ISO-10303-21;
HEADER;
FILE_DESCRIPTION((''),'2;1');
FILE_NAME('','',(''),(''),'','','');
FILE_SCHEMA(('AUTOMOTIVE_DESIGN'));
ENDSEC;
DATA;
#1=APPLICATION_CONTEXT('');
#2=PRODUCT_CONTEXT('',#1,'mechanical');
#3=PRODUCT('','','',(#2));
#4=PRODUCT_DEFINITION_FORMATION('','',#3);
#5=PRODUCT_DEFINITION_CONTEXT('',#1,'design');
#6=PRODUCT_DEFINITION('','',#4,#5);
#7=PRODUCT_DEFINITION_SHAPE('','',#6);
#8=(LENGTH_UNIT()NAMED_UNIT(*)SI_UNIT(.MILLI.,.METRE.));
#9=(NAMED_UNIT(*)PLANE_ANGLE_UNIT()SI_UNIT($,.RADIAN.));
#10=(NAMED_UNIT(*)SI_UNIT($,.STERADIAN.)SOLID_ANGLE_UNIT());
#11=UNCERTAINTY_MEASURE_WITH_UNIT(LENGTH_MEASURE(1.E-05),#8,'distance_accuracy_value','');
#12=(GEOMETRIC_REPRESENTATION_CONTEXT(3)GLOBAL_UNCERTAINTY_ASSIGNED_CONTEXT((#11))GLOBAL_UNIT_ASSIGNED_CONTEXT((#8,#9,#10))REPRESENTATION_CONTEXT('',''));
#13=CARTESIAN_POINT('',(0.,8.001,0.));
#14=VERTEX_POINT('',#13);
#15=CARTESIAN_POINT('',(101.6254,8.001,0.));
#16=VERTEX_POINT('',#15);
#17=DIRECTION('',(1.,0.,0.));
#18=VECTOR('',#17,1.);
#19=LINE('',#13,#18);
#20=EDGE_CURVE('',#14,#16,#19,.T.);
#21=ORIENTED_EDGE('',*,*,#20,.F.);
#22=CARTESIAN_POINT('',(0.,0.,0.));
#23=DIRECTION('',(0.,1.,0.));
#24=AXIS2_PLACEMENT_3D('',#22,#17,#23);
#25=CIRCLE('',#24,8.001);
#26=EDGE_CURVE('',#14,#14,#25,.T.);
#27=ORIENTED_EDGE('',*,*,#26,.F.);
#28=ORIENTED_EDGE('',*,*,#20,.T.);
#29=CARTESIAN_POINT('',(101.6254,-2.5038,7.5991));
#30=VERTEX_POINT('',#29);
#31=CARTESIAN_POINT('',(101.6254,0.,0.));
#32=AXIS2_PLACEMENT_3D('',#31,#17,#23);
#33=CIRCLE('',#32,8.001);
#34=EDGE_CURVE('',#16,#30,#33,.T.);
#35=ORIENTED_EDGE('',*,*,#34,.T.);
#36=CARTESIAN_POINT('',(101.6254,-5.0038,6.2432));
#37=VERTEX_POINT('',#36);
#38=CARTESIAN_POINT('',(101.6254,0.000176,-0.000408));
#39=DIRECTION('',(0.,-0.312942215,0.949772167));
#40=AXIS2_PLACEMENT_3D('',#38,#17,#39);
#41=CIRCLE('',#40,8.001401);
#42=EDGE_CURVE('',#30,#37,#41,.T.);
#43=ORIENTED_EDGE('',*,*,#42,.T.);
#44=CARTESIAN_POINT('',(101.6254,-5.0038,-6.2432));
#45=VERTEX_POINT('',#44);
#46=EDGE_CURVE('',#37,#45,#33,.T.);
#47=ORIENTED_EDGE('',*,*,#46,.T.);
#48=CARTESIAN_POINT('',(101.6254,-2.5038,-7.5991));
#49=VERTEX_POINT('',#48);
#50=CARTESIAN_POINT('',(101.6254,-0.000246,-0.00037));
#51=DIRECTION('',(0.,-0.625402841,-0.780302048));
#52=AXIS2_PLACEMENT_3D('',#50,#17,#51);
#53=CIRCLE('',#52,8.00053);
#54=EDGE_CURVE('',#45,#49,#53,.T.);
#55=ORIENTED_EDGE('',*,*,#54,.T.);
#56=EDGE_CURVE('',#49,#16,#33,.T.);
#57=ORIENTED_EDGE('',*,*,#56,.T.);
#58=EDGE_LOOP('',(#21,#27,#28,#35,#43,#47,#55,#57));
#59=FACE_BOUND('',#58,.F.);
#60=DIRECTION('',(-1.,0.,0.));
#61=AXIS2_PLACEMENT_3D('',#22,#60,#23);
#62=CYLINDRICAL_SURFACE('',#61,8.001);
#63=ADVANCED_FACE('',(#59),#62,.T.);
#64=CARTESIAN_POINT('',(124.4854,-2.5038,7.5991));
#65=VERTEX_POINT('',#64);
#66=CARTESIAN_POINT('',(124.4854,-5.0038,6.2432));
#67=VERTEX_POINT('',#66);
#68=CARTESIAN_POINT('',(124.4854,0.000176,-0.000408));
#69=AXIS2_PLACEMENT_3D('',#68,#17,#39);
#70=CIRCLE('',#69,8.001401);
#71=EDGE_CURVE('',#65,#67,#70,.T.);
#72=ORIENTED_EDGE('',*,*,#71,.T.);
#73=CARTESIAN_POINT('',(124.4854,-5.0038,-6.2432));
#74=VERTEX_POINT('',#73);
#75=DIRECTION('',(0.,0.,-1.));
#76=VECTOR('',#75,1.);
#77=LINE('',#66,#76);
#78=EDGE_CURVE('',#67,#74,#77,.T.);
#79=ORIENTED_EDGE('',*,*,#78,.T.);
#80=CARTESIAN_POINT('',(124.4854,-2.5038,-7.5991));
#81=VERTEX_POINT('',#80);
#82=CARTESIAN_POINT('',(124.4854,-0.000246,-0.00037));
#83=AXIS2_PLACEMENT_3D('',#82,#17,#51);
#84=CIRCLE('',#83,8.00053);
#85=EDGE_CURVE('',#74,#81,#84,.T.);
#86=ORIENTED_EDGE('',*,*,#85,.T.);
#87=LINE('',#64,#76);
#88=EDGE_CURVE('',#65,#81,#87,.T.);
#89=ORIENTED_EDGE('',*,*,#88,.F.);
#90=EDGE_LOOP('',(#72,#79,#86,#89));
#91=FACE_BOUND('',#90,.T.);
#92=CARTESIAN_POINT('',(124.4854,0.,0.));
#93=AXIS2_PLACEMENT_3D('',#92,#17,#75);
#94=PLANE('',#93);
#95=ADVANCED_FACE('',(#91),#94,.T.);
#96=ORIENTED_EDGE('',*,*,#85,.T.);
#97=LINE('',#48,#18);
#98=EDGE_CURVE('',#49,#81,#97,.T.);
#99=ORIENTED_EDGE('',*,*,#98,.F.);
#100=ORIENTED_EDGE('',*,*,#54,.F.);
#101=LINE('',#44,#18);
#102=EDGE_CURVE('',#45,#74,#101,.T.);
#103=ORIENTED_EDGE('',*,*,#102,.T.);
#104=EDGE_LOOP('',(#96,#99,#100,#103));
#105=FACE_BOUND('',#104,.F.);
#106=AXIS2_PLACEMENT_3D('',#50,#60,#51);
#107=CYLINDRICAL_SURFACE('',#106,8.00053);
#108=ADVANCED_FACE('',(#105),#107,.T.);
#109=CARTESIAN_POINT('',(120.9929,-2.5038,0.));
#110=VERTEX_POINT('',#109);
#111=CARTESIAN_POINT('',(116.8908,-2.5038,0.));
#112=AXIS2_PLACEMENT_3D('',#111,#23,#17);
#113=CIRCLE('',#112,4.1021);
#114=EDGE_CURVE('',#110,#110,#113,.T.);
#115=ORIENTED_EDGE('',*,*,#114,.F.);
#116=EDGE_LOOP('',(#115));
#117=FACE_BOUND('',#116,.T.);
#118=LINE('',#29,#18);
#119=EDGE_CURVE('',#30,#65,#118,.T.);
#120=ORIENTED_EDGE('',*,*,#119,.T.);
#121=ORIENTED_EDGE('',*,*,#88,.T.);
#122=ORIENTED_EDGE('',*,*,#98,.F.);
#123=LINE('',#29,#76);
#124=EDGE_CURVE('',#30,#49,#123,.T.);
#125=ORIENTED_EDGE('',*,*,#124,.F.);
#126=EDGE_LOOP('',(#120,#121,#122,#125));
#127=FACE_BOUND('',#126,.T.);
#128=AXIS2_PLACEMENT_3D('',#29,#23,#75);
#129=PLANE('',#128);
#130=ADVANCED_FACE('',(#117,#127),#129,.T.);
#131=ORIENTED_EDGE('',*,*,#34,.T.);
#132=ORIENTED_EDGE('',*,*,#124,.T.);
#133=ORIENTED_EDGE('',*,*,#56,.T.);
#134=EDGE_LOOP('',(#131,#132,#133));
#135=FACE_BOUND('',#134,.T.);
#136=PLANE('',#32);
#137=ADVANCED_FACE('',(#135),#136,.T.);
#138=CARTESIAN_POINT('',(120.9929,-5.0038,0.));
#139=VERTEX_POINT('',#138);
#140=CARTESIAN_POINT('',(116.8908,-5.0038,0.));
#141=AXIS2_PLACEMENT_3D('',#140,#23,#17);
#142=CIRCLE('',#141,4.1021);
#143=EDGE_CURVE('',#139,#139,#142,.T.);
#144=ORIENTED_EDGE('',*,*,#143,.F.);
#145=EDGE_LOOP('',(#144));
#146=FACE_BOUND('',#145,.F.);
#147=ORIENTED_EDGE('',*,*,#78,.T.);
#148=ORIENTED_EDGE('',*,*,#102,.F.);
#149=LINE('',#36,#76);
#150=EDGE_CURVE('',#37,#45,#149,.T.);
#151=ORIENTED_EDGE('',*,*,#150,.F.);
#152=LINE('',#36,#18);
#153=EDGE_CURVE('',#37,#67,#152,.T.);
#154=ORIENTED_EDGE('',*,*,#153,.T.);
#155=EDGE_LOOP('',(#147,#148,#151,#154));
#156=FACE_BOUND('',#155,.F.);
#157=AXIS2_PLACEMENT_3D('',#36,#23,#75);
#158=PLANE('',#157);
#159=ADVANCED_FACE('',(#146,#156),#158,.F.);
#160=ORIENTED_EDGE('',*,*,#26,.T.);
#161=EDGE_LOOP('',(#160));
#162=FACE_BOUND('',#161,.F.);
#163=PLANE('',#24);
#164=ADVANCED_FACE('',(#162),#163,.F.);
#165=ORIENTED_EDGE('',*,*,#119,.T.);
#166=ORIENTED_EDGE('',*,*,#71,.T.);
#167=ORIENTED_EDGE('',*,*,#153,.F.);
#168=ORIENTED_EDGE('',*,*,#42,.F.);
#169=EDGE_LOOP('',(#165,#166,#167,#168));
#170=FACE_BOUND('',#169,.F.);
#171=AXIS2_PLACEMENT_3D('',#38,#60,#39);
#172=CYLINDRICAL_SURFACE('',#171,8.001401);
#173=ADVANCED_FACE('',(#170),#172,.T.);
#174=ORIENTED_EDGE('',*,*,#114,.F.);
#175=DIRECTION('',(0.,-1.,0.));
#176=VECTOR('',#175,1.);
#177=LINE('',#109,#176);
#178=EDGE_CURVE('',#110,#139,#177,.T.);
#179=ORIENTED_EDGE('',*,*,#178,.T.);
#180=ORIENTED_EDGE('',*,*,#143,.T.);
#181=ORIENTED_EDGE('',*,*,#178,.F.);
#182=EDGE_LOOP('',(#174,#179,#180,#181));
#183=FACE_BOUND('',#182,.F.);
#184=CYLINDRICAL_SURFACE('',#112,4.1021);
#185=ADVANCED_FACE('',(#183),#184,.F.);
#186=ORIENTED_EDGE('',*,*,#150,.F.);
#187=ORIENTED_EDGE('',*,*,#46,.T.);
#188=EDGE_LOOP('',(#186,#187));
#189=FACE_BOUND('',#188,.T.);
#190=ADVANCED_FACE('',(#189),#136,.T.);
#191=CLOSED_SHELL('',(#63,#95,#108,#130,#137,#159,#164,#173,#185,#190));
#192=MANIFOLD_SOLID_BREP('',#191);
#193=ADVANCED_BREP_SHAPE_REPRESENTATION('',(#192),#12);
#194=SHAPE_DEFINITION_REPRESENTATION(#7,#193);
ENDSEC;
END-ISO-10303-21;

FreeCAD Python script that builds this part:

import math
import FreeCAD as App
import Part
import Sketcher
Q = App.Units.Quantity

doc = App.newDocument("Part")
body = doc.addObject("PartDesign::Body", "Body")

# Sketch on YZ plane
sketch1 = doc.addObject("Sketcher::SketchObject", "Sketch")
body.addObject(sketch1)
sketch1.AttachmentSupport = (doc.YZ_Plane, [""])
sketch1.MapMode = "FlatFace"
sketch1.addGeometry(Part.Circle(App.Vector(0, 0, 0), App.Vector(0, 0, 1), 8), False)
sketch1.addConstraint([
    Sketcher.Constraint("Coincident", 0, 3, -1, 1),
    Sketcher.Constraint("Diameter", 0, Q("0.63 in")),
])
pad1 = doc.addObject("PartDesign::Pad", "Pad")
body.addObject(pad1)
pad1.Profile = sketch1
pad1.Length = Q("4.001 in")

# Sketch on YZ plane
sketch2 = doc.addObject("Sketcher::SketchObject", "Sketch001")
body.addObject(sketch2)
sketch2.AttachmentSupport = (doc.YZ_Plane, [""])
sketch2.MapMode = "FlatFace"
sketch2.AttachmentOffset = App.Placement(App.Vector(0, 0, 4.001 * 25.4), App.Rotation())
sketch2.addGeometry([
    Part.ArcOfCircle(Part.Circle(App.Vector(0, 0, 0), App.Vector(0, 0, 1), 8), math.radians(108), math.radians(129)),
    Part.LineSegment(App.Vector(-5, 6.2, 0), App.Vector(-5, -6.2, 0)),
    Part.ArcOfCircle(Part.Circle(App.Vector(0, 0, 0), App.Vector(0, 0, 1), 8), math.radians(-129), math.radians(-108)),
    Part.LineSegment(App.Vector(-2.5, -7.6, 0), App.Vector(-2.5, 7.6, 0)),
], False)
sketch2.addConstraint([
    Sketcher.Constraint("Coincident", 0, 2, 1, 1),
    Sketcher.Constraint("Coincident", 1, 2, 2, 1),
    Sketcher.Constraint("Coincident", 2, 2, 3, 1),
    Sketcher.Constraint("Coincident", 3, 2, 0, 1),
    Sketcher.Constraint("Vertical", 1),
    Sketcher.Constraint("Vertical", 3),
    Sketcher.Constraint("Coincident", 0, 3, -1, 1),
    Sketcher.Constraint("Coincident", 2, 3, -1, 1),
    Sketcher.Constraint("Equal", 0, 2),
    Sketcher.Constraint("DistanceX", 0, 2, -1, 1, Q("0.197 in")),
    Sketcher.Constraint("Radius", 0, Q("0.315 in")),
    Sketcher.Constraint("DistanceX", 1, 2, 2, 2, Q("2.5 mm")),
])
pad2 = doc.addObject("PartDesign::Pad", "Pad001")
body.addObject(pad2)
pad2.Profile = sketch2
pad2.Length = Q("0.9 in")

# Sketch on XZ plane
sketch3 = doc.addObject("Sketcher::SketchObject", "Sketch002")
body.addObject(sketch3)
sketch3.AttachmentSupport = (doc.XZ_Plane, [""])
sketch3.MapMode = "FlatFace"
sketch3.AttachmentOffset = App.Placement(App.Vector(0, 0, 2.5038), App.Rotation())
sketch3.addGeometry(Part.Circle(App.Vector(116.9, 0, 0), App.Vector(0, 0, 1), 4.1), False)
sketch3.addConstraint([
    Sketcher.Constraint("PointOnObject", 0, 3, -1),
    Sketcher.Constraint("Diameter", 0, Q("0.323 in")),
    Sketcher.Constraint("DistanceX", -1, 1, 0, 3, Q("4.602 in")),
])
pocket1 = doc.addObject("PartDesign::Pocket", "Pocket")
body.addObject(pocket1)
pocket1.Profile = sketch3
pocket1.Length = Q("0.591 in")
pocket1.Reversed = True

doc.recompute()
